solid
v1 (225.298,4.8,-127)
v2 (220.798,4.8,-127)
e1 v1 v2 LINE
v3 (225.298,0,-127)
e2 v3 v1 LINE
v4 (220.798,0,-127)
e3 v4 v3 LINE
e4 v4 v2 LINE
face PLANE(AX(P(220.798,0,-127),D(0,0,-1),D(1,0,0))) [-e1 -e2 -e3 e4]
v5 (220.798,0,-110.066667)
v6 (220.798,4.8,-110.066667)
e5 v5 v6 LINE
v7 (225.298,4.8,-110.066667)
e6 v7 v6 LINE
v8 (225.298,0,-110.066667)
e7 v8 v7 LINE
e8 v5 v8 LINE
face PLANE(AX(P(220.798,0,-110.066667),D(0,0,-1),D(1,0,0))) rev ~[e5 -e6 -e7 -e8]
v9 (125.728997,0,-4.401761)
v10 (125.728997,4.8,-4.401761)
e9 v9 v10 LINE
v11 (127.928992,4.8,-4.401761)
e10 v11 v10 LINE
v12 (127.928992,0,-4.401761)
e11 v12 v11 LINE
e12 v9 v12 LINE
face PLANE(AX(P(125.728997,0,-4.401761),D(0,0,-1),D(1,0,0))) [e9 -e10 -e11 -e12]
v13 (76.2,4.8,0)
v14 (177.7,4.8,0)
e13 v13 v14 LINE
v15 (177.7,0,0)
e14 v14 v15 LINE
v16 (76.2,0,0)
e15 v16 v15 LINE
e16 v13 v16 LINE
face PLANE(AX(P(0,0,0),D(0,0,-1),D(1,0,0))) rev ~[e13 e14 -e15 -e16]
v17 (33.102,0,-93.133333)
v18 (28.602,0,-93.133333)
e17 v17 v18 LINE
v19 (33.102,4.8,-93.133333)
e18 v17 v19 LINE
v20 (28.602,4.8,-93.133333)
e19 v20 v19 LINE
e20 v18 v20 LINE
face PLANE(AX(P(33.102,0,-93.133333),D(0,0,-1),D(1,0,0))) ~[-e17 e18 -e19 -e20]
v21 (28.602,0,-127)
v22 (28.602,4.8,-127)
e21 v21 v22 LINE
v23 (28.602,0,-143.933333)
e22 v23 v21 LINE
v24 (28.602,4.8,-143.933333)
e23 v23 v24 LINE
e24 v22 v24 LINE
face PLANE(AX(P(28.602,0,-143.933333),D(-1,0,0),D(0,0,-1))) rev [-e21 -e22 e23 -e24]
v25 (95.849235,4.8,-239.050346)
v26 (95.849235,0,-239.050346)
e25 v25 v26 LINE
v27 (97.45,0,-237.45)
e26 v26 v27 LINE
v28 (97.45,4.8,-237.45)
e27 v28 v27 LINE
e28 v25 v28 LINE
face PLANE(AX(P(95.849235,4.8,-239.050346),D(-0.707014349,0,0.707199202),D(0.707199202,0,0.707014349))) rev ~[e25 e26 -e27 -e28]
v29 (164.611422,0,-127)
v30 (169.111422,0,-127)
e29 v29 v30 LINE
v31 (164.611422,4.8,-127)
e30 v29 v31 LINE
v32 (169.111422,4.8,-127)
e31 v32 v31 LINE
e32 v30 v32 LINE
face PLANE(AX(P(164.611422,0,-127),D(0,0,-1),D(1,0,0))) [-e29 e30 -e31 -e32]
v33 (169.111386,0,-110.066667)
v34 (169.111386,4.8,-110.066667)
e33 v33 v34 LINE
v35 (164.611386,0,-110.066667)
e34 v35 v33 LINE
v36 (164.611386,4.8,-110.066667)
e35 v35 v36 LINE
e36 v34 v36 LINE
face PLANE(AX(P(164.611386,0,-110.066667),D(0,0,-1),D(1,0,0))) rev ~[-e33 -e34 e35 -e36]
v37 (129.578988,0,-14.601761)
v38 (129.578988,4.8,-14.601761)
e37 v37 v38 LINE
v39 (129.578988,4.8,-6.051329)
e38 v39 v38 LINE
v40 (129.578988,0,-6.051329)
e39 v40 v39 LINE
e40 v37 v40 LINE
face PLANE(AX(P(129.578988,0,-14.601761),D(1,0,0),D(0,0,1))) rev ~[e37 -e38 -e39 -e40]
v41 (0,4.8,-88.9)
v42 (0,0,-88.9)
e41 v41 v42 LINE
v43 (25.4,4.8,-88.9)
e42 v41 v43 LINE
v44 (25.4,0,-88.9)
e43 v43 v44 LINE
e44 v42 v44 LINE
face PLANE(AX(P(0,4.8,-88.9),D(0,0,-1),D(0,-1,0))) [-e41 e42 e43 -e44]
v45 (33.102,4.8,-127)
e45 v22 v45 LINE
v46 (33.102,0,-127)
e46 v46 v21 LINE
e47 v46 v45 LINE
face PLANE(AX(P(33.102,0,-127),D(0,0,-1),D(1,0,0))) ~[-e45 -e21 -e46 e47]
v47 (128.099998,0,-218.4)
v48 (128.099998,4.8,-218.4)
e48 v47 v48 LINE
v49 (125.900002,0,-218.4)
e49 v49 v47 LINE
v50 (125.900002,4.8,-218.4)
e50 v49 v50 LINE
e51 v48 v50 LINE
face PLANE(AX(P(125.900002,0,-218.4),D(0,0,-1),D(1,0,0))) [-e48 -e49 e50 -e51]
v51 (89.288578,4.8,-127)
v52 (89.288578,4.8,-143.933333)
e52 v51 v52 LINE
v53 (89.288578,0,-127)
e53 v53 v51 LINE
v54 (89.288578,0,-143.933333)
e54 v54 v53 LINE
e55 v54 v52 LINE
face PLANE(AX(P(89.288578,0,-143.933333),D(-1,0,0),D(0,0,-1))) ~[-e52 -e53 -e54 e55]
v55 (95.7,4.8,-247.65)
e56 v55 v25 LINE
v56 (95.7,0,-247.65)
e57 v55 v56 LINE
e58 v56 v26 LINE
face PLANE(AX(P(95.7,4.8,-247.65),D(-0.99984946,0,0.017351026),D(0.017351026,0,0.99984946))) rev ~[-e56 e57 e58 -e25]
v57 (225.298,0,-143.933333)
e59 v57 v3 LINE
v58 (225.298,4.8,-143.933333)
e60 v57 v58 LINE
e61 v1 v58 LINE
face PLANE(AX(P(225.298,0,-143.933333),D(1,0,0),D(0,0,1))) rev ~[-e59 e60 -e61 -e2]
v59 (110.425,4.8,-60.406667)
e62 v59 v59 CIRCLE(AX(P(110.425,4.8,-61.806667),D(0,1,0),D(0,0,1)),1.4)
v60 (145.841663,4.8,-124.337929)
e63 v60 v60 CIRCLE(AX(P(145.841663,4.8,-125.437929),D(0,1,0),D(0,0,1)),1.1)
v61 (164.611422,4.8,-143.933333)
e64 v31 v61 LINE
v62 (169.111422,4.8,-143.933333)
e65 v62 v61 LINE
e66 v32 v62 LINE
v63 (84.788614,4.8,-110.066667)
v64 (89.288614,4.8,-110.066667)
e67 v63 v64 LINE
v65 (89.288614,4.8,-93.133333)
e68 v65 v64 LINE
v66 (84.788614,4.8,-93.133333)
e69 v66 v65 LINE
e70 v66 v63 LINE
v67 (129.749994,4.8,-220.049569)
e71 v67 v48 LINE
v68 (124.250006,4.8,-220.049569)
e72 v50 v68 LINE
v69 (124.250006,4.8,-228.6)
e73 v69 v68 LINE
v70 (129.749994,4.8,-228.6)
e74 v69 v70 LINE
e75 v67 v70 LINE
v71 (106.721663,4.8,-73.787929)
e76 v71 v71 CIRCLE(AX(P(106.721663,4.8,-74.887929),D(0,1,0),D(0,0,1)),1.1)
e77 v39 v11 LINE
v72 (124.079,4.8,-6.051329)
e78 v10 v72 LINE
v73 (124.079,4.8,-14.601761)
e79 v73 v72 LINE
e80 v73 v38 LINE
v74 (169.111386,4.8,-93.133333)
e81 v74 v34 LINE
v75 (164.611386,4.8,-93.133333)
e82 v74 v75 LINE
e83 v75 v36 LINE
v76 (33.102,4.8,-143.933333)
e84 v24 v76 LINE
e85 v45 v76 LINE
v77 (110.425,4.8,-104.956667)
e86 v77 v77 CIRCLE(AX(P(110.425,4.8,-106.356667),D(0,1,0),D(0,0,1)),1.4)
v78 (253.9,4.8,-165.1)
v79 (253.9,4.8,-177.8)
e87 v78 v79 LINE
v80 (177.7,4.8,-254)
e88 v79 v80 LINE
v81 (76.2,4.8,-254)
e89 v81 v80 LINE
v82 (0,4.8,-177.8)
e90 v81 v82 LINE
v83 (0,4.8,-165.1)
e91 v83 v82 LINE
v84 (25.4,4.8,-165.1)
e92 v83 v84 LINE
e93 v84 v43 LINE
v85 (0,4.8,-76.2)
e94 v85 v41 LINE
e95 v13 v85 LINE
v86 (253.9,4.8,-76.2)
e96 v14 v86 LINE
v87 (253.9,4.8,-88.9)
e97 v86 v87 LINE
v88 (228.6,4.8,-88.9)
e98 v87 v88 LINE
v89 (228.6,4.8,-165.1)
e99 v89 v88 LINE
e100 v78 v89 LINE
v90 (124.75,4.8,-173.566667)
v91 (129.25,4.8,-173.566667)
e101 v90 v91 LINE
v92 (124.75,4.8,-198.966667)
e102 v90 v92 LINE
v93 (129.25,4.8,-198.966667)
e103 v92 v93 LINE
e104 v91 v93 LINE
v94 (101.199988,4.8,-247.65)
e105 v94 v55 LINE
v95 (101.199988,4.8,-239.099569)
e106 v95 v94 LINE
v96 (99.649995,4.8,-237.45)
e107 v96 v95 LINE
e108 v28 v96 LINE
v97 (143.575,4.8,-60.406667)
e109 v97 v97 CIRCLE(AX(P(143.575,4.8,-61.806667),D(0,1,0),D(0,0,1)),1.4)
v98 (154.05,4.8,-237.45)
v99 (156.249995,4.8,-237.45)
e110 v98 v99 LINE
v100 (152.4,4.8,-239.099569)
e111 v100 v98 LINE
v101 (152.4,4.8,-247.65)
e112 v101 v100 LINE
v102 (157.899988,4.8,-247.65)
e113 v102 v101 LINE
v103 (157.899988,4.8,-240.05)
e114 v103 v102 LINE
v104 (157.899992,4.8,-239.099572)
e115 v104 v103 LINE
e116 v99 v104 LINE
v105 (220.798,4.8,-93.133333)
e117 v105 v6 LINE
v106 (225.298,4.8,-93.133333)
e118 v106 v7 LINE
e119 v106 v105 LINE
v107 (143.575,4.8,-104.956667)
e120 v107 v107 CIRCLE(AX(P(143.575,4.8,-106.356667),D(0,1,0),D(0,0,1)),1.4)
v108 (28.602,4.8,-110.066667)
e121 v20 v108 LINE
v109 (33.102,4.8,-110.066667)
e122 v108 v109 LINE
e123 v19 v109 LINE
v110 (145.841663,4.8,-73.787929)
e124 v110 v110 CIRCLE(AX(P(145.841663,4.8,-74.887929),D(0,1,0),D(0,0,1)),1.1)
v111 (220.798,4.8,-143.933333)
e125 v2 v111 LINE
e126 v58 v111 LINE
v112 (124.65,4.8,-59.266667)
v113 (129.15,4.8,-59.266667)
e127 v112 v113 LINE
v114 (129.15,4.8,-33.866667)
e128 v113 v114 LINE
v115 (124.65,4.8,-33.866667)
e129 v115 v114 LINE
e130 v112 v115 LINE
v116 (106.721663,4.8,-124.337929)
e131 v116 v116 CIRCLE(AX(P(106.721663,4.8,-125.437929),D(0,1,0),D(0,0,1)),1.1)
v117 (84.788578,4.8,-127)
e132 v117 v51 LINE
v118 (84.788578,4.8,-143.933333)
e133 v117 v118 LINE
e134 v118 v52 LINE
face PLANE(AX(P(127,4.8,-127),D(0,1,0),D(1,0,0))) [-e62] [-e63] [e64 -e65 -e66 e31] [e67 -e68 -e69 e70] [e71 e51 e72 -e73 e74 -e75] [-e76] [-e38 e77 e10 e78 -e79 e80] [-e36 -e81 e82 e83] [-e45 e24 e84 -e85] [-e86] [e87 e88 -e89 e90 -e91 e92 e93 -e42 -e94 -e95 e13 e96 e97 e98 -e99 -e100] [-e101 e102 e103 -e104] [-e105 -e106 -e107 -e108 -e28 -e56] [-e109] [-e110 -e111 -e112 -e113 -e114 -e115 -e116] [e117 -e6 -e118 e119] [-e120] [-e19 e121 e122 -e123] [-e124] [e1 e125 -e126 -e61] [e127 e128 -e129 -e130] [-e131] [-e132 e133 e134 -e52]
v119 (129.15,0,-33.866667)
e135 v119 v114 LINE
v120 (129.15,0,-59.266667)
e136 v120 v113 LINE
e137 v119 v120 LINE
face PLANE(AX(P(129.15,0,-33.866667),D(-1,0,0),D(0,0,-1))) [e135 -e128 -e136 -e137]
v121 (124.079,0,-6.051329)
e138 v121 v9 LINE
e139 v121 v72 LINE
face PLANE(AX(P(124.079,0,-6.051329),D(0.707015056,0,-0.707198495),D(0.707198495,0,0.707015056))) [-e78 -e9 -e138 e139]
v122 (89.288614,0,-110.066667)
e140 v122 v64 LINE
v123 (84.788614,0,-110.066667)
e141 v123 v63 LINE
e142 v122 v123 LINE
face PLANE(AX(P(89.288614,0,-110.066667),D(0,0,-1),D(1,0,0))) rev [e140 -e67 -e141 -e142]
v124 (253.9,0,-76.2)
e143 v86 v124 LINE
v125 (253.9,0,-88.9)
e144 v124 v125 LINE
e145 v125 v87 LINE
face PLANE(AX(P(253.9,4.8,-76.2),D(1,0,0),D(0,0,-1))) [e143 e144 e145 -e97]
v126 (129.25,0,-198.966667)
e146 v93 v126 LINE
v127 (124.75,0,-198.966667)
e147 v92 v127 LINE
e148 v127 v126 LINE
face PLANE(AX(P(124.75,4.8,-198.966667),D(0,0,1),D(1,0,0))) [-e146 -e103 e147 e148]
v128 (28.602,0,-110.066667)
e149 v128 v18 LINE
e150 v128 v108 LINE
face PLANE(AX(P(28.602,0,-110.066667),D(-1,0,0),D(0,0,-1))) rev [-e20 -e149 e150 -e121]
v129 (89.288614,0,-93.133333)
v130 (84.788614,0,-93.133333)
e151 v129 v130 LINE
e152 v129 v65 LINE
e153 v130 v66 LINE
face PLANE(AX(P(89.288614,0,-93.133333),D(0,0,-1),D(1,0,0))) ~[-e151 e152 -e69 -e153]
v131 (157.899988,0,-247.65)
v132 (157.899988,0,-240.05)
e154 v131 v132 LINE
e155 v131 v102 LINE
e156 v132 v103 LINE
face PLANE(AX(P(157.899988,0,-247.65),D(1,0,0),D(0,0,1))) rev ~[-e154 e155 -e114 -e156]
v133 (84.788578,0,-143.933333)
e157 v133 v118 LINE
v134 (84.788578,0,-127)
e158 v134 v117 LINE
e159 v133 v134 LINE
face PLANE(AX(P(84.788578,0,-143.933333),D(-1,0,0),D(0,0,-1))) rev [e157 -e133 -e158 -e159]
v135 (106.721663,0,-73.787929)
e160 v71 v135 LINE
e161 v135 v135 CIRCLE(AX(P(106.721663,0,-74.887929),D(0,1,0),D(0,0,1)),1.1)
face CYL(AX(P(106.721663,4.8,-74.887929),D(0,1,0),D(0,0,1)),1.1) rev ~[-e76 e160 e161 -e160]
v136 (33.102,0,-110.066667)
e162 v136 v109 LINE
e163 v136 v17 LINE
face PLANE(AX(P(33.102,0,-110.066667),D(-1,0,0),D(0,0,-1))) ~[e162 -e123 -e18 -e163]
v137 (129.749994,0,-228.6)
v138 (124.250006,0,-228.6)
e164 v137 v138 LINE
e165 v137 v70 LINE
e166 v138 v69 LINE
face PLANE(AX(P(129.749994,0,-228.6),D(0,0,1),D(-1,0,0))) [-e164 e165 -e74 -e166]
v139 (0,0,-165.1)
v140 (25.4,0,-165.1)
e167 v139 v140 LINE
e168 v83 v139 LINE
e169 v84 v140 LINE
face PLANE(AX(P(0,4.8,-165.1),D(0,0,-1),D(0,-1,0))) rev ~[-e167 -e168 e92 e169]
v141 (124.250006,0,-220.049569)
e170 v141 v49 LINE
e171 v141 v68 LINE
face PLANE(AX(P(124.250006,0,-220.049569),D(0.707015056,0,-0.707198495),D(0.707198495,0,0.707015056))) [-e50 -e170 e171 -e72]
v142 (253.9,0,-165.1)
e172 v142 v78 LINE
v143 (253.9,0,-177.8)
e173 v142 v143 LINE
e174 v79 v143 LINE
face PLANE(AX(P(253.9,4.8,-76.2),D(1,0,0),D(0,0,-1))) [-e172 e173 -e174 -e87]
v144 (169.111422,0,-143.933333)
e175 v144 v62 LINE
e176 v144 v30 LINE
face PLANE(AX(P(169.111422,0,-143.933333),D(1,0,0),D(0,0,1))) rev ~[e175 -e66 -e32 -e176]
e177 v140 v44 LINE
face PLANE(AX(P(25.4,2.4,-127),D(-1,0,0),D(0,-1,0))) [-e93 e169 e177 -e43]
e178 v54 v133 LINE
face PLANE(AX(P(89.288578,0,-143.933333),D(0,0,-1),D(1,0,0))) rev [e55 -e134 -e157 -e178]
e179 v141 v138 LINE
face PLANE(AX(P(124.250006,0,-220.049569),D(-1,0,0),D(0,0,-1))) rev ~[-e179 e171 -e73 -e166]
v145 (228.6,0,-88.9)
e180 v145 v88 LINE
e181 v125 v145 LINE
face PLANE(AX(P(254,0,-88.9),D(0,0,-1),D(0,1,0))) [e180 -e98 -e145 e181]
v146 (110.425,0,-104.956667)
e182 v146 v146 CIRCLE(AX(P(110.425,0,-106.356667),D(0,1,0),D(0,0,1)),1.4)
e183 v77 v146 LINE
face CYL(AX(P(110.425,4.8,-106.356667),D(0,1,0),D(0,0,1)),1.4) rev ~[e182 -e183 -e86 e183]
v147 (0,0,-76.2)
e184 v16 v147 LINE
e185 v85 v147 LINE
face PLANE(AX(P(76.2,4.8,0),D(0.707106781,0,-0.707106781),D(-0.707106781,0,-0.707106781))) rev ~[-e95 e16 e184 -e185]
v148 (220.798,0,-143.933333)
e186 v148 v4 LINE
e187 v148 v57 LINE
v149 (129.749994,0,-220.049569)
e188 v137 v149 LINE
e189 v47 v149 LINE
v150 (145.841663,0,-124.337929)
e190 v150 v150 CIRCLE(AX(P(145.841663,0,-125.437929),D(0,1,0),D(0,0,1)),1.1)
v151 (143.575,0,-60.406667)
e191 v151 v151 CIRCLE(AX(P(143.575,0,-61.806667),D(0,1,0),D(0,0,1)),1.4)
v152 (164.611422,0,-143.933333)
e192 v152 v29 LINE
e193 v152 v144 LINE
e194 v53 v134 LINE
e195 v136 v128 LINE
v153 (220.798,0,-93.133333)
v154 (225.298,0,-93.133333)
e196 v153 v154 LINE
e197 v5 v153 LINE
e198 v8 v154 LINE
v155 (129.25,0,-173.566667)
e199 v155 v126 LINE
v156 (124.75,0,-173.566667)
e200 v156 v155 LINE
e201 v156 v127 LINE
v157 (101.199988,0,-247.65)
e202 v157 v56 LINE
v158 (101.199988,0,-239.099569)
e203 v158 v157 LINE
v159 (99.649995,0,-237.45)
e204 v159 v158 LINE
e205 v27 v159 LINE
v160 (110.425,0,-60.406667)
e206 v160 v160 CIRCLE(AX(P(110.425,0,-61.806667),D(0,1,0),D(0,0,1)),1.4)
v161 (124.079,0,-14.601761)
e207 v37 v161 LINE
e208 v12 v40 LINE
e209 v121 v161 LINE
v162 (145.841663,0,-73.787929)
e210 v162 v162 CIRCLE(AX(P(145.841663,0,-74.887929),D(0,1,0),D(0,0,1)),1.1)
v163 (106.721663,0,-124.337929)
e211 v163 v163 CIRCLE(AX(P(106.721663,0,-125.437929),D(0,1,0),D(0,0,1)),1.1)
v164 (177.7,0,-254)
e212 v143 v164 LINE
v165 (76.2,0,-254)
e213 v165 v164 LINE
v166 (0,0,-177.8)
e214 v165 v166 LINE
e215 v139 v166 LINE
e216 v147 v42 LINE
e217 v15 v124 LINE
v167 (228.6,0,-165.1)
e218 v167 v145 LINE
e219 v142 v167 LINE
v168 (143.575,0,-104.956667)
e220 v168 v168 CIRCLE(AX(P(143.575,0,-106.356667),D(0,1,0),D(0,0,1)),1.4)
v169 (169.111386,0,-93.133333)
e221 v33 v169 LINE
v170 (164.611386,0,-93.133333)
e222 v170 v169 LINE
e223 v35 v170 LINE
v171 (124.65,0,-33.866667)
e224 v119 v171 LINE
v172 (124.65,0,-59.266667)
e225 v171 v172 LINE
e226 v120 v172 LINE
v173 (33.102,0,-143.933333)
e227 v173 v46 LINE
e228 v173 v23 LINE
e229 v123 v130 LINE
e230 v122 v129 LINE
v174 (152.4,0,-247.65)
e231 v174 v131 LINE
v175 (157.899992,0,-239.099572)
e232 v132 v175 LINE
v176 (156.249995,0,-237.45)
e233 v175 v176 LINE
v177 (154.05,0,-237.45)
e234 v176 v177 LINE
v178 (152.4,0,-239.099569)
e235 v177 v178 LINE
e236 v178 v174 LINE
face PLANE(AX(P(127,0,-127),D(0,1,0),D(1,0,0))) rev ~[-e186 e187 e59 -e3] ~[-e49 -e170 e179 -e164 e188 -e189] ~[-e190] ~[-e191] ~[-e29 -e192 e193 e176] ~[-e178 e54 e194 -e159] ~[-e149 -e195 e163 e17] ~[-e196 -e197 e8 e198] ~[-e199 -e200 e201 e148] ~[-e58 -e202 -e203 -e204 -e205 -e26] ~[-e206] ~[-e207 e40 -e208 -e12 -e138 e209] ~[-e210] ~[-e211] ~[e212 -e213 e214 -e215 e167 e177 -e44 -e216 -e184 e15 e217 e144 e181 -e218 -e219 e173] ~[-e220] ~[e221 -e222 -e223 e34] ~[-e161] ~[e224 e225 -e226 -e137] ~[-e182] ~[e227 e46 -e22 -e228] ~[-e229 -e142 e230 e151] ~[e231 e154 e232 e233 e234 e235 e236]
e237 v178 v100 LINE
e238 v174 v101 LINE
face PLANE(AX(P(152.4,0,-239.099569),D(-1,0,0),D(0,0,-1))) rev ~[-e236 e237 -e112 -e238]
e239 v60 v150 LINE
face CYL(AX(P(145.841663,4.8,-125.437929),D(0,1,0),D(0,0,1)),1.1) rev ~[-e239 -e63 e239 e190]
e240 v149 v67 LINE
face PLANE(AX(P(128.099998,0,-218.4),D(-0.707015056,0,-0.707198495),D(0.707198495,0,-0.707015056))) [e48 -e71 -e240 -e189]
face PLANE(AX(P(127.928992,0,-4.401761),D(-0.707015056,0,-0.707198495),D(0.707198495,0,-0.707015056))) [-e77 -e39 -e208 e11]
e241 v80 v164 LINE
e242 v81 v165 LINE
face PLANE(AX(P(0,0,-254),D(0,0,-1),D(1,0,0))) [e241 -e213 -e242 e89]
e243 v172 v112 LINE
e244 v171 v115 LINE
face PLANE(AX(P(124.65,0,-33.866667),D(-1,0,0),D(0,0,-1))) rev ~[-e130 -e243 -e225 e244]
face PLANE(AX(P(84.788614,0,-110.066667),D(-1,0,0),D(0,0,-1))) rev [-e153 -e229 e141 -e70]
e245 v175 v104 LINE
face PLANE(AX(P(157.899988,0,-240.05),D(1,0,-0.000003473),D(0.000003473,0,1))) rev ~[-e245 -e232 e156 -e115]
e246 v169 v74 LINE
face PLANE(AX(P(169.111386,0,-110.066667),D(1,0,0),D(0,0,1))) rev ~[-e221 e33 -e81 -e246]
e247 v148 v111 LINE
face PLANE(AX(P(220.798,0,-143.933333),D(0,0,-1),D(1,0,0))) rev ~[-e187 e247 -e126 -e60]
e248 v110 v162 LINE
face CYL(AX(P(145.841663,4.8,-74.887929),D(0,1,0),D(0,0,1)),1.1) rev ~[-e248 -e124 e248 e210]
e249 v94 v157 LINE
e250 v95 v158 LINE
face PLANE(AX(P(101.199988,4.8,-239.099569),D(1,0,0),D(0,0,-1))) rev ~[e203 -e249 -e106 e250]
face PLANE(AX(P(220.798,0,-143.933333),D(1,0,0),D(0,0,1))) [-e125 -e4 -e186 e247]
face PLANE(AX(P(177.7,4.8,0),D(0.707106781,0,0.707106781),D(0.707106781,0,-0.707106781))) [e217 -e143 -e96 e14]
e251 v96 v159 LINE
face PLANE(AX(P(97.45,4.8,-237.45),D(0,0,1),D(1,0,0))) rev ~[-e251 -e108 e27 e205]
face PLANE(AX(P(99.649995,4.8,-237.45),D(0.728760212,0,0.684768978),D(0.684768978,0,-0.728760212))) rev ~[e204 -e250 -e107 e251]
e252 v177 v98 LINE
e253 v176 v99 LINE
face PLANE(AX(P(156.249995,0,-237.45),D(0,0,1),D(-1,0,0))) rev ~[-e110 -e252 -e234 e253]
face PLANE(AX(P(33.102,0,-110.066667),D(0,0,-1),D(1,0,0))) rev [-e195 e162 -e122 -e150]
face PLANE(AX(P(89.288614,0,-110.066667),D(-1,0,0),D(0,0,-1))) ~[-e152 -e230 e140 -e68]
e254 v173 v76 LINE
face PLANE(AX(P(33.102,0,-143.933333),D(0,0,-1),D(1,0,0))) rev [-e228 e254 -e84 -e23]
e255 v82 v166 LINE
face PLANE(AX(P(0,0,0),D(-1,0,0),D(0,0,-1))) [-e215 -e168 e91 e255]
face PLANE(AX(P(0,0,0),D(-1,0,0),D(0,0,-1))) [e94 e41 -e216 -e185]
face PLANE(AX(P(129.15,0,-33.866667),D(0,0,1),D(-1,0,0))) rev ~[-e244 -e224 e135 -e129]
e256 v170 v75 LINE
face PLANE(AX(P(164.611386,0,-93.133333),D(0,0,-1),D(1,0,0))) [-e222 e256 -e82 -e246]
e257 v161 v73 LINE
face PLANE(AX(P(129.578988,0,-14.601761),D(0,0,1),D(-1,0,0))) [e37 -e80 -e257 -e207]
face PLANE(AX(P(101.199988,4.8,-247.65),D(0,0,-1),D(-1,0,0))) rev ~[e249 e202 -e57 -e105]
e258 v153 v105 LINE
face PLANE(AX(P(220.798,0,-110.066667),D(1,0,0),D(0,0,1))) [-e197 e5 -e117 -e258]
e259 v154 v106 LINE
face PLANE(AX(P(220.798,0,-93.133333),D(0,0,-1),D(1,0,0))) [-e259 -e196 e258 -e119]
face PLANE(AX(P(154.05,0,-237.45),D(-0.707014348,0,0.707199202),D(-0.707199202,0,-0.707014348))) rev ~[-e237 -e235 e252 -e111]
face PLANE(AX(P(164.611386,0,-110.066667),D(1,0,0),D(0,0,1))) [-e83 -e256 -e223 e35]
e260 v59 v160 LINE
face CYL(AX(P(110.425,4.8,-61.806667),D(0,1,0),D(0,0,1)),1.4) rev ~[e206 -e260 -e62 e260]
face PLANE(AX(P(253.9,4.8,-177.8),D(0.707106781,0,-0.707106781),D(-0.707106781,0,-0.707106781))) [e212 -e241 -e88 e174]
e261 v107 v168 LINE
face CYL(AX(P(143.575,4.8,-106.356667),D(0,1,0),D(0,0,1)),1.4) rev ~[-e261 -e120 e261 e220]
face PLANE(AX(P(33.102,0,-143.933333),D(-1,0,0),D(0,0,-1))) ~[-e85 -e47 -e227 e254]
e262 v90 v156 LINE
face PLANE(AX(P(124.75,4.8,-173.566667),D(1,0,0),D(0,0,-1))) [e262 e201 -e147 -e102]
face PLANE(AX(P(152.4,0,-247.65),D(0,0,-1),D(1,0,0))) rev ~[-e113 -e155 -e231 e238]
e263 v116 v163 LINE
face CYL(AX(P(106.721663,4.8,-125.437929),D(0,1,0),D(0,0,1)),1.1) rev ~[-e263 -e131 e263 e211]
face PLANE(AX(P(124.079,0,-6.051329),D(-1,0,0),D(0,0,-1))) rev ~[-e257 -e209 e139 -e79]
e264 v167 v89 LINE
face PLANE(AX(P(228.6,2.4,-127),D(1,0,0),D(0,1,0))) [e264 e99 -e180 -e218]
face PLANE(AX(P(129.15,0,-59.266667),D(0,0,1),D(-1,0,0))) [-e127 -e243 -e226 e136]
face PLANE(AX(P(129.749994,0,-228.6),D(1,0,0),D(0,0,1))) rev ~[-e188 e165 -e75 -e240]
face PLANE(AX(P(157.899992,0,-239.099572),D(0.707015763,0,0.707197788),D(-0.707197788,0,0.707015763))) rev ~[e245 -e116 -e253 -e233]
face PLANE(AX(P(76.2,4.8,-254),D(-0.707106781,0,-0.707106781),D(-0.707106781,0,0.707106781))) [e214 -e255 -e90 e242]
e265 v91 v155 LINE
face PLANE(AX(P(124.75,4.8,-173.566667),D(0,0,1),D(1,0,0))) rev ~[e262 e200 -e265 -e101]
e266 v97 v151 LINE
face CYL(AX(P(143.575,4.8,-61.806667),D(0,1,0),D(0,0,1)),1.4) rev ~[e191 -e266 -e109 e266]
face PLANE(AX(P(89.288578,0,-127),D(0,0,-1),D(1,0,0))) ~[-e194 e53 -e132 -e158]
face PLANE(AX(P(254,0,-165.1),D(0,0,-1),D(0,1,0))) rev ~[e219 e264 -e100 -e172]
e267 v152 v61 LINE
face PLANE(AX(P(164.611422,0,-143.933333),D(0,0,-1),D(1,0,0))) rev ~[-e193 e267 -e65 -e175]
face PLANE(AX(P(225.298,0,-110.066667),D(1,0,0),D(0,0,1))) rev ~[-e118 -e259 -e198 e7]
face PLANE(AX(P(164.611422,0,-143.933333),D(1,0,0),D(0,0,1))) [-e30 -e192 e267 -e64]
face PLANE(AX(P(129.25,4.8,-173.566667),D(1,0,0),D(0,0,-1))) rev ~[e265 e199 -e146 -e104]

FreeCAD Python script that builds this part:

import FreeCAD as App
import Part
import Sketcher
from FreeCAD import Vector


def add_polygon(sketch, points):
    """Adds a closed chain of lines whose ends are joined by coincident constraints."""
    first, n = sketch.GeometryCount, len(points)
    for a, b in zip(points, points[1:] + points[:1]):
        sketch.addGeometry(Part.LineSegment(App.Vector(*a, 0), App.Vector(*b, 0)), False)
    for i in range(n):
        sketch.addConstraint(Sketcher.Constraint("Coincident", first + i, 2, first + (i + 1) % n, 1))

doc = App.newDocument("Part")
params = doc.addObject("Spreadsheet::Sheet", "Params")
for row, (alias, value) in enumerate([
    ("sketch1_width", "254 mm"),
    ("pad1_length", "4.8 mm"),
    ("sketch2_width", "76.2 mm"),
    ("sketch3_width", "76.2 mm"),
    ("pocket2_length", "4.826 mm"),
    ("sketch4_width", "76.2 mm"),
    ("pocket3_length", "4.826 mm"),
    ("sketch5_width", "76.2 mm"),
    ("pocket4_length", "4.826 mm"),
    ("sketch6_width", "101.6 mm"),
    ("sketch6_height", "7.6 mm"),
    ("pocket5_length", "360.242314 mm"),
    ("sketch7_width", "101.6 mm"),
    ("pocket6_length", "360.242314 mm"),
    ("sketch8_width", "101.6 mm"),
    ("pocket7_length", "216.155907 mm"),
    ("sketch9_width", "101.6 mm"),
    ("sketch9_width2", "4.5 mm"),
    ("pocket8_length", "364.309276 mm"),
    ("sketch10_width", "4.8 mm"),
    ("sketch10_height", "76.2 mm"),
    ("pocket9_length", "25.4 mm"),
    ("sketch12_width", "4.8 mm"),
    ("sketch12_height", "76.2 mm"),
    ("pocket11_length", "25.4 mm"),
    ("sketch13_width", "4.5 mm"),
    ("sketch14_width", "4.5 mm"),
    ("sketch14_height", "25.4 mm"),
    ("sketch15_width", "4.5 mm"),
    ("sketch15_height", "25.4 mm"),
    ("sketch16_diameter", "2.8 mm"),
    ("sketch17_diameter", "2.2 mm"),
], start=1):
    params.set(f"A{row}", alias)
    params.set(f"B{row}", "=" + value)
    params.setAlias(f"B{row}", alias)

body = doc.addObject("PartDesign::Body", "Body")

# Sketch on XZ plane
sketch1 = doc.addObject("Sketcher::SketchObject", "Sketch")
body.addObject(sketch1)
sketch1.AttachmentSupport = (doc.XZ_Plane, [""])
sketch1.MapMode = "FlatFace"
add_polygon(sketch1, [(0, -254), (0, 0), (254, 0), (254, -254)])  # lines 0-3
sketch1.addConstraint(Sketcher.Constraint("Vertical", 0))
sketch1.addConstraint(Sketcher.Constraint("Horizontal", 1))
sketch1.addConstraint(Sketcher.Constraint("Vertical", 2))
sketch1.addConstraint(Sketcher.Constraint("Horizontal", 3))
sketch1.addConstraint(Sketcher.Constraint("Coincident", 0, 2, -1, 1))
sketch1.addConstraint(Sketcher.Constraint("Equal", 3, 0))
sketch1.addConstraint(Sketcher.Constraint("DistanceX", 1, 1, 1, 2, 254.0))
sketch1.setExpression("Constraints[10]", "Params.sketch1_width")
pad1 = doc.addObject("PartDesign::Pad", "Pad")
body.addObject(pad1)
pad1.Profile = sketch1
pad1.setExpression("Length", "Params.pad1_length")
pad1.Reversed = True

# Sketch on XZ plane
sketch2 = doc.addObject("Sketcher::SketchObject", "Sketch001")
body.addObject(sketch2)
sketch2.AttachmentSupport = (doc.XZ_Plane, [""])
sketch2.MapMode = "FlatFace"
sketch2.AttachmentOffset = App.Placement(Vector(0, 0, -4.8), App.Rotation())
add_polygon(sketch2, [(0, -177.8), (76.2, -254), (0, -254)])  # lines 0-2
sketch2.addConstraint(Sketcher.Constraint("Horizontal", 1))
sketch2.addConstraint(Sketcher.Constraint("Vertical", 2))
sketch2.addConstraint(Sketcher.Constraint("PointOnObject", 1, 2, -2))
sketch2.addConstraint(Sketcher.Constraint("Equal", 1, 2))
sketch2.addConstraint(Sketcher.Constraint("DistanceX", 1, 2, 1, 1, 76.2))
sketch2.addConstraint(Sketcher.Constraint("DistanceY", 0, 2, -1, 1, 254.0))
sketch2.setExpression("Constraints[7]", "Params.sketch2_width")
pocket1 = doc.addObject("PartDesign::Pocket", "Pocket")
body.addObject(pocket1)
pocket1.Profile = sketch2
pocket1.Type = "ThroughAll"
pocket1.Reversed = True

# Sketch on XZ plane
sketch3 = doc.addObject("Sketcher::SketchObject", "Sketch002")
body.addObject(sketch3)
sketch3.AttachmentSupport = (doc.XZ_Plane, [""])
sketch3.MapMode = "FlatFace"
sketch3.AttachmentOffset = App.Placement(Vector(0, 0, -4.8), App.Rotation())
add_polygon(sketch3, [(177.8, -254), (254, -177.8), (254, -254)])  # lines 0-2
sketch3.addConstraint(Sketcher.Constraint("Vertical", 1))
sketch3.addConstraint(Sketcher.Constraint("Horizontal", 2))
sketch3.addConstraint(Sketcher.Constraint("Equal", 2, 1))
sketch3.addConstraint(Sketcher.Constraint("DistanceX", 2, 2, 2, 1, 76.2))
sketch3.addConstraint(Sketcher.Constraint("DistanceX", -1, 1, 0, 2, 254.0))
sketch3.addConstraint(Sketcher.Constraint("DistanceY", 1, 2, -1, 1, 254.0))
sketch3.setExpression("Constraints[6]", "Params.sketch3_width")
pocket2 = doc.addObject("PartDesign::Pocket", "Pocket001")
body.addObject(pocket2)
pocket2.Profile = sketch3
pocket2.setExpression("Length", "Params.pocket2_length")
pocket2.Reversed = True

# Sketch on XZ plane
sketch4 = doc.addObject("Sketcher::SketchObject", "Sketch003")
body.addObject(sketch4)
sketch4.AttachmentSupport = (doc.XZ_Plane, [""])
sketch4.MapMode = "FlatFace"
sketch4.AttachmentOffset = App.Placement(Vector(0, 0, -4.8), App.Rotation())
add_polygon(sketch4, [(0, -76.2), (0, 0), (76.2, 0)])  # lines 0-2
sketch4.addConstraint(Sketcher.Constraint("Vertical", 0))
sketch4.addConstraint(Sketcher.Constraint("Horizontal", 1))
sketch4.addConstraint(Sketcher.Constraint("Coincident", 0, 2, -1, 1))
sketch4.addConstraint(Sketcher.Constraint("Equal", 1, 0))
sketch4.addConstraint(Sketcher.Constraint("DistanceX", 1, 1, 1, 2, 76.2))
sketch4.setExpression("Constraints[7]", "Params.sketch4_width")
pocket3 = doc.addObject("PartDesign::Pocket", "Pocket002")
body.addObject(pocket3)
pocket3.Profile = sketch4
pocket3.setExpression("Length", "Params.pocket3_length")
pocket3.Reversed = True

# Sketch on XZ plane
sketch5 = doc.addObject("Sketcher::SketchObject", "Sketch004")
body.addObject(sketch5)
sketch5.AttachmentSupport = (doc.XZ_Plane, [""])
sketch5.MapMode = "FlatFace"
sketch5.AttachmentOffset = App.Placement(Vector(0, 0, -4.8), App.Rotation())
add_polygon(sketch5, [(254, 0), (254, -76.2), (177.8, 0)])  # lines 0-2
sketch5.addConstraint(Sketcher.Constraint("Vertical", 0))
sketch5.addConstraint(Sketcher.Constraint("Horizontal", 2))
sketch5.addConstraint(Sketcher.Constraint("PointOnObject", 1, 2, -1))
sketch5.addConstraint(Sketcher.Constraint("Equal", 2, 0))
sketch5.addConstraint(Sketcher.Constraint("DistanceX", 2, 1, 2, 2, 76.2))
sketch5.addConstraint(Sketcher.Constraint("DistanceX", -1, 1, 0, 2, 254.0))
sketch5.setExpression("Constraints[7]", "Params.sketch5_width")
pocket4 = doc.addObject("PartDesign::Pocket", "Pocket003")
body.addObject(pocket4)
pocket4.Profile = sketch5
pocket4.setExpression("Length", "Params.pocket4_length")
pocket4.Reversed = True

# Sketch on XZ plane
sketch6 = doc.addObject("Sketcher::SketchObject", "Sketch005")
body.addObject(sketch6)
sketch6.AttachmentSupport = (doc.XZ_Plane, [""])
sketch6.MapMode = "FlatFace"
add_polygon(sketch6, [(-36.924, 36.924), (-36.924, -290.924), (290.924, -290.924), (290.924, 36.924)])  # lines 0-3
add_polygon(sketch6, [(177.8, 0), (254, -76.2), (254, -177.8), (177.8, -254), (76.2, -254), (0, -177.8), (0, -76.2), (76.2, 0)])  # lines 4-11
add_polygon(sketch6, [(154.05, -237.45), (152.4, -239.099569), (152.4, -247.65), (157.899988, -247.65), (157.899988, -240.05), (157.899992, -239.099572), (156.249995, -237.45)])  # lines 12-18
sketch6.addConstraint(Sketcher.Constraint("Vertical", 0))
sketch6.addConstraint(Sketcher.Constraint("Horizontal", 1))
sketch6.addConstraint(Sketcher.Constraint("Vertical", 2))
sketch6.addConstraint(Sketcher.Constraint("Horizontal", 3))
sketch6.addConstraint(Sketcher.Constraint("Vertical", 5))
sketch6.addConstraint(Sketcher.Constraint("Horizontal", 7))
sketch6.addConstraint(Sketcher.Constraint("Vertical", 9))
sketch6.addConstraint(Sketcher.Constraint("Horizontal", 11))
sketch6.addConstraint(Sketcher.Constraint("Vertical", 13))
sketch6.addConstraint(Sketcher.Constraint("Horizontal", 14))
sketch6.addConstraint(Sketcher.Constraint("Vertical", 15))
sketch6.addConstraint(Sketcher.Constraint("Horizontal", 18))
sketch6.addConstraint(Sketcher.Constraint("PointOnObject", 8, 2, -2))
sketch6.addConstraint(Sketcher.Constraint("PointOnObject", 10, 2, -1))
sketch6.addConstraint(Sketcher.Constraint("Perpendicular", 4, 6))
sketch6.addConstraint(Sketcher.Constraint("Perpendicular", 6, 8))
sketch6.addConstraint(Sketcher.Constraint("Perpendicular", 8, 10))
sketch6.addConstraint(Sketcher.Constraint("Horizontal", 5, 2, 8, 2))
sketch6.addConstraint(Sketcher.Constraint("Horizontal", 4, 2, 9, 2))
sketch6.addConstraint(Sketcher.Constraint("Vertical", 7, 2, 10, 2))
sketch6.addConstraint(Sketcher.Constraint("Vertical", 6, 2, 11, 2))
sketch6.addConstraint(Sketcher.Constraint("Equal", 3, 0))
sketch6.addConstraint(Sketcher.Constraint("Equal", 11, 5))
sketch6.addConstraint(Sketcher.Constraint("Equal", 12, 17))
sketch6.addConstraint(Sketcher.Constraint("DistanceX", 7, 2, 7, 1, 101.6))
sketch6.addConstraint(Sketcher.Constraint("DistanceY", 15, 1, 15, 2, 7.6))
sketch6.addConstraint(Sketcher.Constraint("DistanceX", -1, 1, 4, 2, 254.0))
sketch6.addConstraint(Sketcher.Constraint("DistanceX", -1, 1, 12, 2, 152.4))
sketch6.addConstraint(Sketcher.Constraint("DistanceY", 15, 2, 17, 2, 2.6))
sketch6.addConstraint(Sketcher.Constraint("DistanceX", 1, 1, 1, 2, 327.848))
sketch6.addConstraint(Sketcher.Constraint("DistanceY", 13, 2, -1, 1, 247.65))
sketch6.addConstraint(Sketcher.Constraint("DistanceX", -1, 1, 18, 2, 154.05))
sketch6.addConstraint(Sketcher.Constraint("DistanceX", 0, 2, -1, 1, 36.924))
sketch6.addConstraint(Sketcher.Constraint("DistanceY", 0, 2, -1, 1, 290.924))
sketch6.addConstraint(Sketcher.Constraint("DistanceX", 14, 1, 14, 2, 5.499988))
sketch6.addConstraint(Sketcher.Constraint("DistanceY", 13, 2, 13, 1, 8.550431))
sketch6.addConstraint(Sketcher.Constraint("DistanceX", 18, 2, 18, 1, 2.199995))
sketch6.addConstraint(Sketcher.Constraint("DistanceX", -1, 1, 16, 2, 157.899992))
sketch6.setExpression("Constraints[43]", "Params.sketch6_width")
sketch6.setExpression("Constraints[44]", "Params.sketch6_height")
pocket5 = doc.addObject("PartDesign::Pocket", "Pocket004")
body.addObject(pocket5)
pocket5.Profile = sketch6
pocket5.setExpression("Length", "Params.pocket5_length")

# Sketch on XZ plane
sketch7 = doc.addObject("Sketcher::SketchObject", "Sketch006")
body.addObject(sketch7)
sketch7.AttachmentSupport = (doc.XZ_Plane, [""])
sketch7.MapMode = "FlatFace"
add_polygon(sketch7, [(-36.924, 36.924), (-36.924, -290.924), (290.924, -290.924), (290.924, 36.924)])  # lines 0-3
add_polygon(sketch7, [(177.8, 0), (254, -76.2), (254, -177.8), (177.8, -254), (76.2, -254), (0, -177.8), (0, -76.2), (76.2, 0)])  # lines 4-11
add_polygon(sketch7, [(128.099998, -218.4), (125.900002, -218.4), (124.250006, -220.049569), (124.250006, -228.6), (129.749994, -228.6), (129.749994, -220.049569)])  # lines 12-17
sketch7.addConstraint(Sketcher.Constraint("Vertical", 0))
sketch7.addConstraint(Sketcher.Constraint("Horizontal", 1))
sketch7.addConstraint(Sketcher.Constraint("Vertical", 2))
sketch7.addConstraint(Sketcher.Constraint("Horizontal", 3))
sketch7.addConstraint(Sketcher.Constraint("Vertical", 5))
sketch7.addConstraint(Sketcher.Constraint("Horizontal", 7))
sketch7.addConstraint(Sketcher.Constraint("Vertical", 9))
sketch7.addConstraint(Sketcher.Constraint("Horizontal", 11))
sketch7.addConstraint(Sketcher.Constraint("Horizontal", 12))
sketch7.addConstraint(Sketcher.Constraint("Vertical", 14))
sketch7.addConstraint(Sketcher.Constraint("Horizontal", 15))
sketch7.addConstraint(Sketcher.Constraint("Vertical", 16))
sketch7.addConstraint(Sketcher.Constraint("PointOnObject", 8, 2, -2))
sketch7.addConstraint(Sketcher.Constraint("PointOnObject", 10, 2, -1))
sketch7.addConstraint(Sketcher.Constraint("Perpendicular", 4, 6))
sketch7.addConstraint(Sketcher.Constraint("Perpendicular", 6, 8))
sketch7.addConstraint(Sketcher.Constraint("Perpendicular", 8, 10))
sketch7.addConstraint(Sketcher.Constraint("Horizontal", 5, 2, 8, 2))
sketch7.addConstraint(Sketcher.Constraint("Horizontal", 4, 2, 9, 2))
sketch7.addConstraint(Sketcher.Constraint("Horizontal", 13, 2, 16, 2))
sketch7.addConstraint(Sketcher.Constraint("Vertical", 7, 2, 10, 2))
sketch7.addConstraint(Sketcher.Constraint("Vertical", 6, 2, 11, 2))
sketch7.addConstraint(Sketcher.Constraint("Equal", 3, 0))
sketch7.addConstraint(Sketcher.Constraint("Equal", 11, 5))
sketch7.addConstraint(Sketcher.Constraint("Equal", 13, 17))
sketch7.addConstraint(Sketcher.Constraint("DistanceX", 7, 2, 7, 1, 101.6))
sketch7.addConstraint(Sketcher.Constraint("DistanceX", -1, 1, 4, 2, 254.0))
sketch7.addConstraint(Sketcher.Constraint("DistanceY", 12, 2, -1, 1, 218.4))
sketch7.addConstraint(Sketcher.Constraint("DistanceY", 14, 2, -1, 1, 228.6))
sketch7.addConstraint(Sketcher.Constraint("DistanceX", 1, 1, 1, 2, 327.848))
sketch7.addConstraint(Sketcher.Constraint("DistanceX", 0, 2, -1, 1, 36.924))
sketch7.addConstraint(Sketcher.Constraint("DistanceY", 0, 2, -1, 1, 290.924))
sketch7.addConstraint(Sketcher.Constraint("DistanceX", 15, 1, 15, 2, 5.499988))
sketch7.addConstraint(Sketcher.Constraint("DistanceY", 14, 2, 14, 1, 8.550431))
sketch7.addConstraint(Sketcher.Constraint("DistanceX", 12, 2, 12, 1, 2.199995))
sketch7.addConstraint(Sketcher.Constraint("DistanceX", -1, 1, 12, 2, 125.900002))
sketch7.setExpression("Constraints[43]", "Params.sketch7_width")
pocket6 = doc.addObject("PartDesign::Pocket", "Pocket005")
body.addObject(pocket6)
pocket6.Profile = sketch7
pocket6.setExpression("Length", "Params.pocket6_length")

# Sketch on XZ plane
sketch8 = doc.addObject("Sketcher::SketchObject", "Sketch007")
body.addObject(sketch8)
sketch8.AttachmentSupport = (doc.XZ_Plane, [""])
sketch8.MapMode = "FlatFace"
sketch8.AttachmentOffset = App.Placement(Vector(0, 0, -4.8), App.Rotation())
add_polygon(sketch8, [(-36.924333, -290.923651), (-36.924333, 36.924349), (290.923667, 36.924349), (290.923667, -290.923651)])  # lines 0-3
add_polygon(sketch8, [(177.7, 0), (76.1, 0), (-0.1, -76.2), (-0.1, -177.8), (76.1, -254), (177.7, -254), (253.9, -177.8), (253.9, -76.2)])  # lines 4-11
add_polygon(sketch8, [(101.199988, -239.099569), (101.199988, -247.65), (95.7, -247.65), (95.849235, -239.050346), (97.45, -237.45), (99.649995, -237.45)])  # lines 12-17
sketch8.addConstraint(Sketcher.Constraint("Vertical", 0))
sketch8.addConstraint(Sketcher.Constraint("Horizontal", 1))
sketch8.addConstraint(Sketcher.Constraint("Vertical", 2))
sketch8.addConstraint(Sketcher.Constraint("Horizontal", 3))
sketch8.addConstraint(Sketcher.Constraint("Horizontal", 4))
sketch8.addConstraint(Sketcher.Constraint("Vertical", 6))
sketch8.addConstraint(Sketcher.Constraint("Horizontal", 8))
sketch8.addConstraint(Sketcher.Constraint("Vertical", 10))
sketch8.addConstraint(Sketcher.Constraint("Vertical", 12))
sketch8.addConstraint(Sketcher.Constraint("Horizontal", 13))
sketch8.addConstraint(Sketcher.Constraint("Horizontal", 16))
sketch8.addConstraint(Sketcher.Constraint("PointOnObject", 4, 2, -1))
sketch8.addConstraint(Sketcher.Constraint("Perpendicular", 5, 7))
sketch8.addConstraint(Sketcher.Constraint("Perpendicular", 7, 9))
sketch8.addConstraint(Sketcher.Constraint("Perpendicular", 9, 11))
sketch8.addConstraint(Sketcher.Constraint("Horizontal", 6, 2, 9, 2))
sketch8.addConstraint(Sketcher.Constraint("Horizontal", 5, 2, 10, 2))
sketch8.addConstraint(Sketcher.Constraint("Vertical", 4, 2, 7, 2))
sketch8.addConstraint(Sketcher.Constraint("Vertical", 8, 2, 11, 2))
sketch8.addConstraint(Sketcher.Constraint("Equal", 3, 0))
sketch8.addConstraint(Sketcher.Constraint("Equal", 8, 6))
sketch8.addConstraint(Sketcher.Constraint("Equal", 15, 17))
sketch8.addConstraint(Sketcher.Constraint("DistanceX", 4, 2, 4, 1, 101.6))
sketch8.addConstraint(Sketcher.Constraint("DistanceY", 7, 2, -1, 1, 254.0))
sketch8.addConstraint(Sketcher.Constraint("DistanceX", 13, 2, 8, 2, 82.0))
sketch8.addConstraint(Sketcher.Constraint("DistanceX", -1, 1, 4, 2, 76.1))
sketch8.addConstraint(Sketcher.Constraint("DistanceY", 13, 2, 15, 2, 10.2))
sketch8.addConstraint(Sketcher.Constraint("DistanceX", 1, 1, 1, 2, 327.848))
sketch8.addConstraint(Sketcher.Constraint("DistanceY", 12, 2, -1, 1, 247.65))
sketch8.addConstraint(Sketcher.Constraint("DistanceX", -1, 1, 15, 2, 97.45))
sketch8.addConstraint(Sketcher.Constraint("DistanceX", 13, 2, 13, 1, 5.499988))
sketch8.addConstraint(Sketcher.Constraint("DistanceY", 12, 2, 12, 1, 8.550431))
sketch8.addConstraint(Sketcher.Constraint("Distance", 14, 8.600948))
sketch8.addConstraint(Sketcher.Constraint("DistanceX", 16, 1, 16, 2, 2.199995))
sketch8.addConstraint(Sketcher.Constraint("DistanceY", -1, 1, 0, 2, 36.924349))
sketch8.addConstraint(Sketcher.Constraint("DistanceX", 3, 2, 12, 2, 138.124321))
sketch8.setExpression("Constraints[40]", "Params.sketch8_width")
pocket7 = doc.addObject("PartDesign::Pocket", "Pocket006")
body.addObject(pocket7)
pocket7.Profile = sketch8
pocket7.setExpression("Length", "Params.pocket7_length")
pocket7.Reversed = True

# Sketch on XZ plane
sketch9 = doc.addObject("Sketcher::SketchObject", "Sketch008")
body.addObject(sketch9)
sketch9.AttachmentSupport = (doc.XZ_Plane, [""])
sketch9.MapMode = "FlatFace"
add_polygon(sketch9, [(-36.916695, 36.916944), (-36.916695, -290.917056), (290.817305, -290.917056), (290.817305, 36.916944)])  # lines 0-3
add_polygon(sketch9, [(177.8, 0), (254, -76.2), (254, -177.8), (177.8, -254), (76.2, -254), (0, -177.8), (0, -76.2), (76.2, 0)])  # lines 4-11
add_polygon(sketch9, [(220.798, -93.133333), (220.798, -110.066667), (225.298, -110.066667), (225.298, -93.133333)])  # lines 12-15
add_polygon(sketch9, [(220.798, -127), (220.798, -143.933333), (225.298, -143.933333), (225.298, -127)])  # lines 16-19
sketch9.addConstraint(Sketcher.Constraint("Vertical", 0))
sketch9.addConstraint(Sketcher.Constraint("Horizontal", 1))
sketch9.addConstraint(Sketcher.Constraint("Vertical", 2))
sketch9.addConstraint(Sketcher.Constraint("Horizontal", 3))
sketch9.addConstraint(Sketcher.Constraint("Vertical", 5))
sketch9.addConstraint(Sketcher.Constraint("Horizontal", 7))
sketch9.addConstraint(Sketcher.Constraint("Vertical", 9))
sketch9.addConstraint(Sketcher.Constraint("Horizontal", 11))
sketch9.addConstraint(Sketcher.Constraint("Vertical", 12))
sketch9.addConstraint(Sketcher.Constraint("Horizontal", 13))
sketch9.addConstraint(Sketcher.Constraint("Vertical", 14))
sketch9.addConstraint(Sketcher.Constraint("Horizontal", 15))
sketch9.addConstraint(Sketcher.Constraint("Vertical", 16))
sketch9.addConstraint(Sketcher.Constraint("Horizontal", 17))
sketch9.addConstraint(Sketcher.Constraint("Vertical", 18))
sketch9.addConstraint(Sketcher.Constraint("Horizontal", 19))
sketch9.addConstraint(Sketcher.Constraint("PointOnObject", 8, 2, -2))
sketch9.addConstraint(Sketcher.Constraint("PointOnObject", 10, 2, -1))
sketch9.addConstraint(Sketcher.Constraint("Perpendicular", 4, 6))
sketch9.addConstraint(Sketcher.Constraint("Perpendicular", 6, 8))
sketch9.addConstraint(Sketcher.Constraint("Perpendicular", 8, 10))
sketch9.addConstraint(Sketcher.Constraint("Horizontal", 5, 2, 8, 2))
sketch9.addConstraint(Sketcher.Constraint("Horizontal", 4, 2, 9, 2))
sketch9.addConstraint(Sketcher.Constraint("Vertical", 7, 2, 10, 2))
sketch9.addConstraint(Sketcher.Constraint("Vertical", 6, 2, 11, 2))
sketch9.addConstraint(Sketcher.Constraint("Vertical", 15, 2, 16, 2))
sketch9.addConstraint(Sketcher.Constraint("Vertical", 14, 2, 17, 2))
sketch9.addConstraint(Sketcher.Constraint("Equal", 11, 5))
sketch9.addConstraint(Sketcher.Constraint("Equal", 14, 16))
sketch9.addConstraint(Sketcher.Constraint("DistanceX", 7, 2, 7, 1, 101.6))
sketch9.addConstraint(Sketcher.Constraint("DistanceX", 13, 1, 13, 2, 4.5))
sketch9.addConstraint(Sketcher.Constraint("DistanceX", -1, 1, 4, 2, 254.0))
sketch9.addConstraint(Sketcher.Constraint("DistanceY", 18, 2, -1, 1, 127.0))
sketch9.addConstraint(Sketcher.Constraint("DistanceY", 16, 2, 15, 2, 50.8))
sketch9.addConstraint(Sketcher.Constraint("DistanceX", 1, 1, 1, 2, 327.734))
sketch9.addConstraint(Sketcher.Constraint("DistanceY", 0, 2, 0, 1, 327.834))
sketch9.addConstraint(Sketcher.Constraint("DistanceX", -1, 1, 12, 2, 220.798))
sketch9.addConstraint(Sketcher.Constraint("DistanceY", 12, 2, 12, 1, 16.933333))
sketch9.addConstraint(Sketcher.Constraint("DistanceY", 12, 2, 2, 2, 146.983611))
sketch9.addConstraint(Sketcher.Constraint("DistanceX", 0, 2, -1, 1, 36.916695))
sketch9.setExpression("Constraints[49]", "Params.sketch9_width")
sketch9.setExpression("Constraints[50]", "Params.sketch9_width2")
pocket8 = doc.addObject("PartDesign::Pocket", "Pocket007")
body.addObject(pocket8)
pocket8.Profile = sketch9
pocket8.setExpression("Length", "Params.pocket8_length")
doc.recompute()

datumplane = doc.addObject("PartDesign::Plane", "DatumPlane")
body.addObject(datumplane)
datumplane.AttachmentSupport = (doc.YZ_Plane, [""])
datumplane.MapMode = "FlatFace"
datumplane.AttachmentOffset = App.Placement(Vector(0, 0, 126.95), App.Rotation())
mirrored = doc.addObject("PartDesign::Mirrored", "Mirrored")
body.addObject(mirrored)
mirrored.Originals = [pocket8]
mirrored.MirrorPlane = (datumplane, [""])
body.Tip = mirrored

# Sketch on YZ plane
sketch10 = doc.addObject("Sketcher::SketchObject", "Sketch009")
body.addObject(sketch10)
sketch10.AttachmentSupport = (doc.YZ_Plane, [""])
sketch10.MapMode = "FlatFace"
sketch10.AttachmentOffset = App.Placement(Vector(0, 0, 254), App.Rotation())
add_polygon(sketch10, [(0, -88.9), (0, -165.1), (4.8, -165.1), (4.8, -88.9)])  # lines 0-3
sketch10.addConstraint(Sketcher.Constraint("Vertical", 0))
sketch10.addConstraint(Sketcher.Constraint("Horizontal", 1))
sketch10.addConstraint(Sketcher.Constraint("Vertical", 2))
sketch10.addConstraint(Sketcher.Constraint("Horizontal", 3))
sketch10.addConstraint(Sketcher.Constraint("PointOnObject", 0, 2, -2))
sketch10.addConstraint(Sketcher.Constraint("DistanceX", 1, 1, 1, 2, 4.8))
sketch10.addConstraint(Sketcher.Constraint("DistanceY", 0, 2, 0, 1, 76.2))
sketch10.addConstraint(Sketcher.Constraint("DistanceY", 0, 2, -1, 1, 165.1))
sketch10.setExpression("Constraints[9]", "Params.sketch10_width")
sketch10.setExpression("Constraints[10]", "Params.sketch10_height")
pocket9 = doc.addObject("PartDesign::Pocket", "Pocket008")
body.addObject(pocket9)
pocket9.Profile = sketch10
pocket9.setExpression("Length", "Params.pocket9_length")

# Sketch on XZ plane
sketch11 = doc.addObject("Sketcher::SketchObject", "Sketch010")
body.addObject(sketch11)
sketch11.AttachmentSupport = (doc.XZ_Plane, [""])
sketch11.MapMode = "FlatFace"
add_polygon(sketch11, [(124.079, -6.051329), (124.079, -14.601761), (129.578988, -14.601761), (129.578988, -6.051329), (127.928992, -4.401761), (125.728997, -4.401761)])  # lines 0-5
sketch11.addConstraint(Sketcher.Constraint("Vertical", 0))
sketch11.addConstraint(Sketcher.Constraint("Horizontal", 1))
sketch11.addConstraint(Sketcher.Constraint("Vertical", 2))
sketch11.addConstraint(Sketcher.Constraint("Horizontal", 4))
sketch11.addConstraint(Sketcher.Constraint("Horizontal", 2, 2, 5, 2))
sketch11.addConstraint(Sketcher.Constraint("Equal", 3, 5))
sketch11.addConstraint(Sketcher.Constraint("DistanceY", 1, 2, 3, 2, 10.2))
sketch11.addConstraint(Sketcher.Constraint("DistanceX", -1, 1, 0, 2, 124.079))
sketch11.addConstraint(Sketcher.Constraint("DistanceX", 1, 1, 1, 2, 5.499988))
sketch11.addConstraint(Sketcher.Constraint("DistanceY", 0, 2, 0, 1, 8.550431))
sketch11.addConstraint(Sketcher.Constraint("DistanceX", 4, 2, 4, 1, 2.199995))
sketch11.addConstraint(Sketcher.Constraint("DistanceY", 0, 2, -1, 1, 14.601761))
pocket10 = doc.addObject("PartDesign::Pocket", "Pocket009")
body.addObject(pocket10)
pocket10.Profile = sketch11
pocket10.Type = "ThroughAll"

# Sketch on YZ plane
sketch12 = doc.addObject("Sketcher::SketchObject", "Sketch011")
body.addObject(sketch12)
sketch12.AttachmentSupport = (doc.YZ_Plane, [""])
sketch12.MapMode = "FlatFace"
add_polygon(sketch12, [(4.8, -88.9), (4.8, -165.1), (0, -165.1), (0, -88.9)])  # lines 0-3
sketch12.addConstraint(Sketcher.Constraint("Vertical", 0))
sketch12.addConstraint(Sketcher.Constraint("Horizontal", 1))
sketch12.addConstraint(Sketcher.Constraint("Vertical", 2))
sketch12.addConstraint(Sketcher.Constraint("Horizontal", 3))
sketch12.addConstraint(Sketcher.Constraint("PointOnObject", 1, 2, -2))
sketch12.addConstraint(Sketcher.Constraint("DistanceX", 1, 2, 1, 1, 4.8))
sketch12.addConstraint(Sketcher.Constraint("DistanceY", 0, 2, 0, 1, 76.2))
sketch12.addConstraint(Sketcher.Constraint("DistanceY", 0, 2, -1, 1, 165.1))
sketch12.setExpression("Constraints[9]", "Params.sketch12_width")
sketch12.setExpression("Constraints[10]", "Params.sketch12_height")
pocket11 = doc.addObject("PartDesign::Pocket", "Pocket010")
body.addObject(pocket11)
pocket11.Profile = sketch12
pocket11.setExpression("Length", "Params.pocket11_length")
pocket11.Reversed = True

# Sketch on XZ plane
sketch13 = doc.addObject("Sketcher::SketchObject", "Sketch012")
body.addObject(sketch13)
sketch13.AttachmentSupport = (doc.XZ_Plane, [""])
sketch13.MapMode = "FlatFace"
add_polygon(sketch13, [(164.611386, -93.133333), (164.611386, -110.066667), (169.111386, -110.066667), (169.111386, -93.133333)])  # lines 0-3
add_polygon(sketch13, [(164.611422, -127), (164.611422, -143.933333), (169.111422, -143.933333), (169.111422, -127)])  # lines 4-7
sketch13.addConstraint(Sketcher.Constraint("Vertical", 0))
sketch13.addConstraint(Sketcher.Constraint("Horizontal", 1))
sketch13.addConstraint(Sketcher.Constraint("Vertical", 2))
sketch13.addConstraint(Sketcher.Constraint("Horizontal", 3))
sketch13.addConstraint(Sketcher.Constraint("Vertical", 4))
sketch13.addConstraint(Sketcher.Constraint("Horizontal", 5))
sketch13.addConstraint(Sketcher.Constraint("Vertical", 6))
sketch13.addConstraint(Sketcher.Constraint("Horizontal", 7))
sketch13.addConstraint(Sketcher.Constraint("Equal", 3, 5))
sketch13.addConstraint(Sketcher.Constraint("Equal", 2, 4))
sketch13.addConstraint(Sketcher.Constraint("DistanceX", 1, 1, 1, 2, 4.5))
sketch13.addConstraint(Sketcher.Constraint("DistanceY", 6, 2, -1, 1, 127.0))
sketch13.addConstraint(Sketcher.Constraint("DistanceY", 4, 2, 3, 2, 50.8))
sketch13.addConstraint(Sketcher.Constraint("DistanceY", 0, 2, 0, 1, 16.933333))
sketch13.addConstraint(Sketcher.Constraint("DistanceX", -1, 1, 4, 2, 164.611422))
sketch13.addConstraint(Sketcher.Constraint("DistanceX", -1, 1, 0, 2, 164.611386))
sketch13.setExpression("Constraints[18]", "Params.sketch13_width")
pocket12 = doc.addObject("PartDesign::Pocket", "Pocket011")
body.addObject(pocket12)
pocket12.Profile = sketch13
pocket12.Type = "ThroughAll"
doc.recompute()

datumplane2 = doc.addObject("PartDesign::Plane", "DatumPlane001")
body.addObject(datumplane2)
datumplane2.AttachmentSupport = (doc.YZ_Plane, [""])
datumplane2.MapMode = "FlatFace"
datumplane2.AttachmentOffset = App.Placement(Vector(0, 0, 126.95), App.Rotation())
mirrored2 = doc.addObject("PartDesign::Mirrored", "Mirrored001")
body.addObject(mirrored2)
mirrored2.Originals = [pocket12]
mirrored2.MirrorPlane = (datumplane2, [""])
body.Tip = mirrored2

# Sketch on XZ plane
sketch14 = doc.addObject("Sketcher::SketchObject", "Sketch013")
body.addObject(sketch14)
sketch14.AttachmentSupport = (doc.XZ_Plane, [""])
sketch14.MapMode = "FlatFace"
sketch14.AttachmentOffset = App.Placement(Vector(0, 0, -4.8), App.Rotation())
add_polygon(sketch14, [(124.75, -198.966667), (124.75, -173.566667), (129.25, -173.566667), (129.25, -198.966667)])  # lines 0-3
sketch14.addConstraint(Sketcher.Constraint("Vertical", 0))
sketch14.addConstraint(Sketcher.Constraint("Horizontal", 1))
sketch14.addConstraint(Sketcher.Constraint("Vertical", 2))
sketch14.addConstraint(Sketcher.Constraint("Horizontal", 3))
sketch14.addConstraint(Sketcher.Constraint("DistanceX", 1, 1, 1, 2, 4.5))
sketch14.addConstraint(Sketcher.Constraint("DistanceY", 0, 1, 0, 2, 25.4))
sketch14.addConstraint(Sketcher.Constraint("DistanceX", -1, 1, 0, 2, 124.75))
sketch14.addConstraint(Sketcher.Constraint("DistanceY", 0, 2, -1, 1, 173.566667))
sketch14.setExpression("Constraints[8]", "Params.sketch14_width")
sketch14.setExpression("Constraints[9]", "Params.sketch14_height")
pocket13 = doc.addObject("PartDesign::Pocket", "Pocket012")
body.addObject(pocket13)
pocket13.Profile = sketch14
pocket13.Type = "ThroughAll"
pocket13.Reversed = True

# Sketch on XZ plane
sketch15 = doc.addObject("Sketcher::SketchObject", "Sketch014")
body.addObject(sketch15)
sketch15.AttachmentSupport = (doc.XZ_Plane, [""])
sketch15.MapMode = "FlatFace"
add_polygon(sketch15, [(129.15, -59.266667), (129.15, -33.866667), (124.65, -33.866667), (124.65, -59.266667)])  # lines 0-3
sketch15.addConstraint(Sketcher.Constraint("Vertical", 0))
sketch15.addConstraint(Sketcher.Constraint("Horizontal", 1))
sketch15.addConstraint(Sketcher.Constraint("Vertical", 2))
sketch15.addConstraint(Sketcher.Constraint("Horizontal", 3))
sketch15.addConstraint(Sketcher.Constraint("DistanceX", 1, 2, 1, 1, 4.5))
sketch15.addConstraint(Sketcher.Constraint("DistanceY", 0, 1, 0, 2, 25.4))
sketch15.addConstraint(Sketcher.Constraint("DistanceX", -1, 1, 0, 2, 129.15))
sketch15.addConstraint(Sketcher.Constraint("DistanceY", 0, 2, -1, 1, 33.866667))
sketch15.setExpression("Constraints[8]", "Params.sketch15_width")
sketch15.setExpression("Constraints[9]", "Params.sketch15_height")
pocket14 = doc.addObject("PartDesign::Pocket", "Pocket013")
body.addObject(pocket14)
pocket14.Profile = sketch15
pocket14.Type = "ThroughAll"

# Sketch on XZ plane
sketch16 = doc.addObject("Sketcher::SketchObject", "Sketch015")
body.addObject(sketch16)
sketch16.AttachmentSupport = (doc.XZ_Plane, [""])
sketch16.MapMode = "FlatFace"
sketch16.AttachmentOffset = App.Placement(Vector(0, 0, -4.8), App.Rotation())
sketch16.addGeometry(Part.Circle(Vector(143.575, -106.356667, 0), Vector(0, 0, 1), 1.4), False)
sketch16.addGeometry(Part.Circle(Vector(110.425, -106.356667, 0), Vector(0, 0, 1), 1.4), False)
sketch16.addGeometry(Part.Circle(Vector(143.575, -61.806667, 0), Vector(0, 0, 1), 1.4), False)
sketch16.addGeometry(Part.Circle(Vector(110.425, -61.806667, 0), Vector(0, 0, 1), 1.4), False)
sketch16.addConstraint(Sketcher.Constraint("Equal", 0, 1))
sketch16.addConstraint(Sketcher.Constraint("Equal", 1, 2))
sketch16.addConstraint(Sketcher.Constraint("Equal", 2, 3))
sketch16.addConstraint(Sketcher.Constraint("Horizontal", 0, 3, 1, 3))
sketch16.addConstraint(Sketcher.Constraint("Horizontal", 2, 3, 3, 3))
sketch16.addConstraint(Sketcher.Constraint("Vertical", 0, 3, 2, 3))
sketch16.addConstraint(Sketcher.Constraint("Vertical", 1, 3, 3, 3))
sketch16.addConstraint(Sketcher.Constraint("Diameter", 0, 2.8))
sketch16.addConstraint(Sketcher.Constraint("DistanceX", 1, 3, 0, 3, 33.15))
sketch16.addConstraint(Sketcher.Constraint("DistanceY", 0, 3, 2, 3, 44.55))
sketch16.addConstraint(Sketcher.Constraint("DistanceX", -1, 1, 0, 3, 143.575))
sketch16.addConstraint(Sketcher.Constraint("DistanceY", 0, 3, -1, 1, 106.356667))
sketch16.setExpression("Constraints[7]", "Params.sketch16_diameter")
pocket15 = doc.addObject("PartDesign::Pocket", "Pocket014")
body.addObject(pocket15)
pocket15.Profile = sketch16
pocket15.Type = "ThroughAll"
pocket15.Reversed = True

# Sketch on XZ plane
sketch17 = doc.addObject("Sketcher::SketchObject", "Sketch016")
body.addObject(sketch17)
sketch17.AttachmentSupport = (doc.XZ_Plane, [""])
sketch17.MapMode = "FlatFace"
sketch17.AttachmentOffset = App.Placement(Vector(0, 0, -4.8), App.Rotation())
sketch17.addGeometry(Part.Circle(Vector(145.841663, -125.437929, 0), Vector(0, 0, 1), 1.1), False)
sketch17.addGeometry(Part.Circle(Vector(106.721663, -125.437929, 0), Vector(0, 0, 1), 1.1), False)
sketch17.addGeometry(Part.Circle(Vector(145.841663, -74.887929, 0), Vector(0, 0, 1), 1.1), False)
sketch17.addGeometry(Part.Circle(Vector(106.721663, -74.887929, 0), Vector(0, 0, 1), 1.1), False)
sketch17.addConstraint(Sketcher.Constraint("Equal", 0, 1))
sketch17.addConstraint(Sketcher.Constraint("Equal", 1, 2))
sketch17.addConstraint(Sketcher.Constraint("Equal", 2, 3))
sketch17.addConstraint(Sketcher.Constraint("Horizontal", 0, 3, 1, 3))
sketch17.addConstraint(Sketcher.Constraint("Horizontal", 2, 3, 3, 3))
sketch17.addConstraint(Sketcher.Constraint("Vertical", 0, 3, 2, 3))
sketch17.addConstraint(Sketcher.Constraint("Vertical", 1, 3, 3, 3))
sketch17.addConstraint(Sketcher.Constraint("Diameter", 0, 2.2))
sketch17.addConstraint(Sketcher.Constraint("DistanceX", 1, 3, 0, 3, 39.12))
sketch17.addConstraint(Sketcher.Constraint("DistanceY", 0, 3, 2, 3, 50.55))
sketch17.addConstraint(Sketcher.Constraint("DistanceY", 0, 3, -1, 1, 125.437929))
sketch17.addConstraint(Sketcher.Constraint("DistanceX", -1, 1, 0, 3, 145.841663))
sketch17.setExpression("Constraints[7]", "Params.sketch17_diameter")
pocket16 = doc.addObject("PartDesign::Pocket", "Pocket015")
body.addObject(pocket16)
pocket16.Profile = sketch17
pocket16.Type = "ThroughAll"
pocket16.Reversed = True

doc.recompute()
